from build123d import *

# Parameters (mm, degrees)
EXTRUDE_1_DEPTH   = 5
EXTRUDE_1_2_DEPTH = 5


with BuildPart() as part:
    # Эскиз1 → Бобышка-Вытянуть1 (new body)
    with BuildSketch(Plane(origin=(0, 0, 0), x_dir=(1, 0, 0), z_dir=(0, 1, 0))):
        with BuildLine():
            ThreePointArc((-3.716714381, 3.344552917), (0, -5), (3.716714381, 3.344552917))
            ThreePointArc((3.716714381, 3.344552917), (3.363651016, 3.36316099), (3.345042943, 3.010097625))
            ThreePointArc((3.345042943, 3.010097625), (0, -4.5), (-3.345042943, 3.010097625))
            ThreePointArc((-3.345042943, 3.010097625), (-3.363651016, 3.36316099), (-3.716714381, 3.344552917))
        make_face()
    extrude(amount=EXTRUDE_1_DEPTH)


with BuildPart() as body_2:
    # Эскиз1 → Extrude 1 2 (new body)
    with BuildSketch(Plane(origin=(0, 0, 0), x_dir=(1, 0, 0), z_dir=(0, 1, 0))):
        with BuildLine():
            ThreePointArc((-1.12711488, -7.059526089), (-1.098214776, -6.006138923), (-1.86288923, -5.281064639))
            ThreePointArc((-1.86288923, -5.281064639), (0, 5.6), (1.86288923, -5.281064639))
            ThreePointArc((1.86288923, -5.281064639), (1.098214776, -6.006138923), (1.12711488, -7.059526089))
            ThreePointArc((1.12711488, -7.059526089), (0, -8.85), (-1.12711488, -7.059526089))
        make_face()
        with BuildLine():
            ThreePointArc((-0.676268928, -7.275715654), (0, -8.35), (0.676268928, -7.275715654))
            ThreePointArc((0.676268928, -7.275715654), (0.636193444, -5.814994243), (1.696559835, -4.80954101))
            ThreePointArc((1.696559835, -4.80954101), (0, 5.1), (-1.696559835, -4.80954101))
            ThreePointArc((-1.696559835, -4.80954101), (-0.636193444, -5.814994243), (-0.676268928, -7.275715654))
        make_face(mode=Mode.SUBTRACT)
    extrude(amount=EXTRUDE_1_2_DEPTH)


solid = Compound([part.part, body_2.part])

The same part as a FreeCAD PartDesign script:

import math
import FreeCAD as App
import Part
import Sketcher

V = App.Vector
Q = App.Units.Quantity

doc = App.newDocument("Part")
body = doc.addObject("PartDesign::Body", "Body")

# Sketch on XZ plane
sketch1 = body.newObject("Sketcher::SketchObject", "Sketch")
sketch1.AttachmentSupport = (doc.getObject("XZ_Plane"), [""])
sketch1.MapMode = "FlatFace"
sketch1.addGeometry(Part.ArcOfCircle(Part.Circle(V(0, 0, 0), V(0, 0, 1), 5), math.radians(-41.983039), math.radians(221.983039)), False)
sketch1.addGeometry(Part.ArcOfCircle(Part.Circle(V(3.530879, -3.177325, 0), V(0, 0, 1), 0.25), math.radians(138.016961), math.radians(318.016961)), False)
sketch1.addGeometry(Part.ArcOfCircle(Part.Circle(V(0, 0, 0), V(0, 0, 1), 4.5), math.radians(-41.983039), math.radians(221.983039)), False)
sketch1.addGeometry(Part.ArcOfCircle(Part.Circle(V(-3.530879, -3.177325, 0), V(0, 0, 1), 0.25), math.radians(-138.016961), math.radians(41.983039)), False)
sketch1.addConstraint(Sketcher.Constraint("Tangent", 0, 1, 1, 2))
sketch1.addConstraint(Sketcher.Constraint("Tangent", 1, 1, 2, 1))
sketch1.addConstraint(Sketcher.Constraint("Tangent", 2, 2, 3, 2))
sketch1.addConstraint(Sketcher.Constraint("Tangent", 3, 1, 0, 2))
sketch1.addConstraint(Sketcher.Constraint("Coincident", 0, 3, -1, 1))
sketch1.addConstraint(Sketcher.Constraint("Coincident", 2, 3, -1, 1))
sketch1.addConstraint(Sketcher.Constraint("Horizontal", 1, 3, 3, 3))
sketch1.addConstraint(Sketcher.Constraint("Radius", 0, Q("5 mm")))
sketch1.addConstraint(Sketcher.Constraint("Radius", 2, Q("4.5 mm")))
sketch1.addConstraint(Sketcher.Constraint("DistanceX", -1, 1, 1, 3, Q("3.530879 mm")))
pad1 = body.newObject("PartDesign::Pad", "Pad")
pad1.Profile = sketch1
pad1.Length = 5
pad1.Reversed = True
body2 = doc.addObject("PartDesign::Body", "Body001")

# Sketch on XZ plane
sketch2 = body2.newObject("Sketcher::SketchObject", "Sketch001")
sketch2.AttachmentSupport = (doc.getObject("XZ_Plane001"), [""])
sketch2.MapMode = "FlatFace"
sketch2.addGeometry(Part.ArcOfCircle(Part.Circle(V(-2.293026, 6.500449, 0), V(0, 0, 1), 1.293026), math.radians(-70.569767), math.radians(25.618641)), False)
sketch2.addGeometry(Part.ArcOfCircle(Part.Circle(V(0, 7.6, 0), V(0, 0, 1), 1.25), math.radians(-25.618641), math.radians(205.618641)), False)
sketch2.addGeometry(Part.ArcOfCircle(Part.Circle(V(2.293026, 6.500449, 0), V(0, 0, 1), 1.293026), math.radians(154.381359), math.radians(250.569767)), False)
sketch2.addGeometry(Part.ArcOfCircle(Part.Circle(V(0, 0, 0), V(0, 0, 1), 5.6), math.radians(109.430233), math.radians(430.569767)), False)
sketch2.addGeometry(Part.ArcOfCircle(Part.Circle(V(-2.293026, 6.500449, 0), V(0, 0, 1), 1.793026), math.radians(-70.569767), math.radians(25.618641)), False)
sketch2.addGeometry(Part.ArcOfCircle(Part.Circle(V(0, 0, 0), V(0, 0, 1), 5.1), math.radians(109.430233), math.radians(430.569767)), False)
sketch2.addGeometry(Part.ArcOfCircle(Part.Circle(V(2.293026, 6.500449, 0), V(0, 0, 1), 1.793026), math.radians(154.381359), math.radians(250.569767)), False)
sketch2.addGeometry(Part.ArcOfCircle(Part.Circle(V(0, 7.6, 0), V(0, 0, 1), 0.75), math.radians(-25.618641), math.radians(205.618641)), False)
sketch2.addConstraint(Sketcher.Constraint("Tangent", 0, 2, 1, 2))
sketch2.addConstraint(Sketcher.Constraint("Tangent", 1, 1, 2, 1))
sketch2.addConstraint(Sketcher.Constraint("Tangent", 2, 2, 3, 2))
sketch2.addConstraint(Sketcher.Constraint("Tangent", 3, 1, 0, 1))
sketch2.addConstraint(Sketcher.Constraint("Tangent", 4, 1, 5, 1))
sketch2.addConstraint(Sketcher.Constraint("Tangent", 5, 2, 6, 2))
sketch2.addConstraint(Sketcher.Constraint("Tangent", 6, 1, 7, 1))
sketch2.addConstraint(Sketcher.Constraint("Tangent", 7, 2, 4, 2))
sketch2.addConstraint(Sketcher.Constraint("Coincident", 3, 3, -1, 1))
sketch2.addConstraint(Sketcher.Constraint("Coincident", 5, 3, -1, 1))
sketch2.addConstraint(Sketcher.Constraint("Coincident", 4, 3, 0, 3))
sketch2.addConstraint(Sketcher.Constraint("Coincident", 6, 3, 2, 3))
sketch2.addConstraint(Sketcher.Constraint("Equal", 0, 2))
sketch2.addConstraint(Sketcher.Constraint("PointOnObject", 1, 3, -2))
sketch2.addConstraint(Sketcher.Constraint("Radius", 3, Q("5.6 mm")))
sketch2.addConstraint(Sketcher.Constraint("Radius", 5, Q("5.1 mm")))
sketch2.addConstraint(Sketcher.Constraint("Radius", 1, Q("1.25 mm")))
sketch2.addConstraint(Sketcher.Constraint("Radius", 7, Q("0.75 mm")))
sketch2.addConstraint(Sketcher.Constraint("DistanceY", -1, 1, 1, 3, Q("7.6 mm")))
sketch2.addConstraint(Sketcher.Constraint("Radius", 0, Q("1.293026 mm")))
pad2 = body2.newObject("PartDesign::Pad", "Pad001")
pad2.Profile = sketch2
pad2.Length = 5
pad2.Reversed = True

doc.recompute()
